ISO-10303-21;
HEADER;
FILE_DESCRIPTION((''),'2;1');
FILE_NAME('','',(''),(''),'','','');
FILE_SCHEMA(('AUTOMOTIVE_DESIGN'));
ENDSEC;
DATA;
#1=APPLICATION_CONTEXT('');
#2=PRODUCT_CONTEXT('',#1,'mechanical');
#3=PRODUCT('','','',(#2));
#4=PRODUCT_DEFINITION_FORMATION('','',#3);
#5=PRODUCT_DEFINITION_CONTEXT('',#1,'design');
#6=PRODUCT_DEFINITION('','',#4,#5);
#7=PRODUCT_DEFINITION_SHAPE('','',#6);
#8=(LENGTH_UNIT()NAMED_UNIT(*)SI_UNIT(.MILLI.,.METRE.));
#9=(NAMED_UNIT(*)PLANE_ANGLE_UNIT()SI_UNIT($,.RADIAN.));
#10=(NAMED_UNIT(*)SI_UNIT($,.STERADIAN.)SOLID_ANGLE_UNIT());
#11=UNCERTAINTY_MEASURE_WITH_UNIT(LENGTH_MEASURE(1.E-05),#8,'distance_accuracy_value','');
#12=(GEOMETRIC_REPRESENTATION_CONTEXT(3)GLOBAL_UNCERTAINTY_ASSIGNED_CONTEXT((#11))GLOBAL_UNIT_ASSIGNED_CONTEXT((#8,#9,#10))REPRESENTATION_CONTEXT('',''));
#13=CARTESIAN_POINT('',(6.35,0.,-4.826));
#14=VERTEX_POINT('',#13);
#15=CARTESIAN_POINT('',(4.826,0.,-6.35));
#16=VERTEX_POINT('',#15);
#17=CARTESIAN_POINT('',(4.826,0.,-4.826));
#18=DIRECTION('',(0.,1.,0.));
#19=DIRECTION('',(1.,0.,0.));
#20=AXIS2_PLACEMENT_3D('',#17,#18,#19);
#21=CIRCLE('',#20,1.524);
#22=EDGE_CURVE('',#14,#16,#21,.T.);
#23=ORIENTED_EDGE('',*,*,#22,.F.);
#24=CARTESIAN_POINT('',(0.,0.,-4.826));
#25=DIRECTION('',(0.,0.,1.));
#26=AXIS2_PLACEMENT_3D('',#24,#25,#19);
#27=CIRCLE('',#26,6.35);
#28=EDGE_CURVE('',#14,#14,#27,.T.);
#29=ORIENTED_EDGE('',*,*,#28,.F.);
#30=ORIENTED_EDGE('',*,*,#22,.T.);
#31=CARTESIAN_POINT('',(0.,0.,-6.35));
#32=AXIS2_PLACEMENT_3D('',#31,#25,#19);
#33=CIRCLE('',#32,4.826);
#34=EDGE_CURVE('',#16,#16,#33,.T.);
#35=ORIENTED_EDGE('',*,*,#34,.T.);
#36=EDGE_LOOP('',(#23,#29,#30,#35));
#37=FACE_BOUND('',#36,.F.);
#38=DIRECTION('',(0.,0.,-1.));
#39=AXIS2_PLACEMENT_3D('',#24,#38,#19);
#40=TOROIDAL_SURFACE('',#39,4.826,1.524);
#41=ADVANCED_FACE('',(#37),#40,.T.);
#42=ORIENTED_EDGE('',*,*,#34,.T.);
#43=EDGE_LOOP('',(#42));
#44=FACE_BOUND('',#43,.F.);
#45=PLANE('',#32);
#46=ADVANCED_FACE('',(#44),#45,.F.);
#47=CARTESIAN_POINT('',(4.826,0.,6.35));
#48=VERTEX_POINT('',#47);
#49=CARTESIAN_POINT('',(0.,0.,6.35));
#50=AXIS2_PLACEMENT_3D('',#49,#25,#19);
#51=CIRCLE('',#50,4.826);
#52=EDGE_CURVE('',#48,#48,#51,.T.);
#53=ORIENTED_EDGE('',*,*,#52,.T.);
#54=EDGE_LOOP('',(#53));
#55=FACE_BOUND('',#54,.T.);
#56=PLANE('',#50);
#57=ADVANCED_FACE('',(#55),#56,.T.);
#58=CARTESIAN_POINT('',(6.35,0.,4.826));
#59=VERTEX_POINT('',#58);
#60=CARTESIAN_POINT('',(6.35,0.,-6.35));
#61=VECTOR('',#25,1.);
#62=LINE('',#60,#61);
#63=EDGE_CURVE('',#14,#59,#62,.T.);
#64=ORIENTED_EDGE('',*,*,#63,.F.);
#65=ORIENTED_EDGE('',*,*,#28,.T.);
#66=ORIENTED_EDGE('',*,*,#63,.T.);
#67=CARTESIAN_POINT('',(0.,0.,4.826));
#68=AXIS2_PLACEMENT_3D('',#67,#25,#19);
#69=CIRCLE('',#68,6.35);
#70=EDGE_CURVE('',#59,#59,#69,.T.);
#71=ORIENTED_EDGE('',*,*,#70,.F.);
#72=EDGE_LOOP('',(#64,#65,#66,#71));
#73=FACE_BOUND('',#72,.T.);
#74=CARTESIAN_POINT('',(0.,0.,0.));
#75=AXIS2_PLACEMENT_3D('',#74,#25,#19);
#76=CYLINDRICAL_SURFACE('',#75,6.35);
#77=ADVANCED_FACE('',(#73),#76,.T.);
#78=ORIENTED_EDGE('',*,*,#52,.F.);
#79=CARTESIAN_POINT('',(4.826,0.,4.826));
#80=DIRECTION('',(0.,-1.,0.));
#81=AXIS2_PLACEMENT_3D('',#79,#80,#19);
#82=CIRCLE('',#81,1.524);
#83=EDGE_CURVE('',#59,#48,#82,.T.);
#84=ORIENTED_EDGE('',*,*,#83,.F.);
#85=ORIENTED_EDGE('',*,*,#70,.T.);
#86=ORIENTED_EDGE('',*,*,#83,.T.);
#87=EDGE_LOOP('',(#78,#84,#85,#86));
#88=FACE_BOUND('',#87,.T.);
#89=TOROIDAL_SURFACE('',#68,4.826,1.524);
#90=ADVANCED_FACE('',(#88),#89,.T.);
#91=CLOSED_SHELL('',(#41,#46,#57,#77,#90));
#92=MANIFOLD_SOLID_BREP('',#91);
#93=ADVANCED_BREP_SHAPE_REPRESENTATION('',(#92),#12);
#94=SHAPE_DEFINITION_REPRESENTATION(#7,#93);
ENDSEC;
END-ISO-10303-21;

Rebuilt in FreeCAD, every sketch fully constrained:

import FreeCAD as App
import Part
import Sketcher
from FreeCAD import Vector
Q = App.Units.Quantity


def edges_at(feature, points):
    """Names of the edges that pass closest to the given points."""
    edges = feature.Shape.Edges
    near = lambda p: min(range(len(edges)), key=lambda i: edges[i].distToShape(Part.Vertex(*p))[0])
    return sorted({f"Edge{near(p) + 1}" for p in points})

doc = App.newDocument("Part")
body = doc.addObject("PartDesign::Body", "Body")

# Sketch on XY plane
sketch1 = body.newObject("Sketcher::SketchObject", "Sketch")
sketch1.AttachmentSupport = (doc.getObject("XY_Plane"), [""])
sketch1.MapMode = "FlatFace"
sketch1.addGeometry(Part.Circle(Vector(0, 0, 0), Vector(0, 0, 1), 6), False)
sketch1.addConstraint([
    Sketcher.Constraint("Coincident", 0, 3, -1, 1),
    Sketcher.Constraint("Diameter", 0, Q("0.5 in")),
])
pad1 = body.newObject("PartDesign::Pad", "Pad")
pad1.Profile = sketch1
pad1.Length = Q("0.5 in")
pad1.Midplane = True
doc.recompute()

fillet = body.newObject("PartDesign::Fillet", "Fillet")
fillet.Base = (pad1, edges_at(pad1, [(-6.35, 0, -6.35)]))
fillet.Radius = Q("0.06 in")
doc.recompute()

fillet2 = body.newObject("PartDesign::Fillet", "Fillet001")
fillet2.Base = (fillet, edges_at(fillet, [(-6.35, 0, 6.35)]))
fillet2.Radius = Q("0.06 in")

doc.recompute()
